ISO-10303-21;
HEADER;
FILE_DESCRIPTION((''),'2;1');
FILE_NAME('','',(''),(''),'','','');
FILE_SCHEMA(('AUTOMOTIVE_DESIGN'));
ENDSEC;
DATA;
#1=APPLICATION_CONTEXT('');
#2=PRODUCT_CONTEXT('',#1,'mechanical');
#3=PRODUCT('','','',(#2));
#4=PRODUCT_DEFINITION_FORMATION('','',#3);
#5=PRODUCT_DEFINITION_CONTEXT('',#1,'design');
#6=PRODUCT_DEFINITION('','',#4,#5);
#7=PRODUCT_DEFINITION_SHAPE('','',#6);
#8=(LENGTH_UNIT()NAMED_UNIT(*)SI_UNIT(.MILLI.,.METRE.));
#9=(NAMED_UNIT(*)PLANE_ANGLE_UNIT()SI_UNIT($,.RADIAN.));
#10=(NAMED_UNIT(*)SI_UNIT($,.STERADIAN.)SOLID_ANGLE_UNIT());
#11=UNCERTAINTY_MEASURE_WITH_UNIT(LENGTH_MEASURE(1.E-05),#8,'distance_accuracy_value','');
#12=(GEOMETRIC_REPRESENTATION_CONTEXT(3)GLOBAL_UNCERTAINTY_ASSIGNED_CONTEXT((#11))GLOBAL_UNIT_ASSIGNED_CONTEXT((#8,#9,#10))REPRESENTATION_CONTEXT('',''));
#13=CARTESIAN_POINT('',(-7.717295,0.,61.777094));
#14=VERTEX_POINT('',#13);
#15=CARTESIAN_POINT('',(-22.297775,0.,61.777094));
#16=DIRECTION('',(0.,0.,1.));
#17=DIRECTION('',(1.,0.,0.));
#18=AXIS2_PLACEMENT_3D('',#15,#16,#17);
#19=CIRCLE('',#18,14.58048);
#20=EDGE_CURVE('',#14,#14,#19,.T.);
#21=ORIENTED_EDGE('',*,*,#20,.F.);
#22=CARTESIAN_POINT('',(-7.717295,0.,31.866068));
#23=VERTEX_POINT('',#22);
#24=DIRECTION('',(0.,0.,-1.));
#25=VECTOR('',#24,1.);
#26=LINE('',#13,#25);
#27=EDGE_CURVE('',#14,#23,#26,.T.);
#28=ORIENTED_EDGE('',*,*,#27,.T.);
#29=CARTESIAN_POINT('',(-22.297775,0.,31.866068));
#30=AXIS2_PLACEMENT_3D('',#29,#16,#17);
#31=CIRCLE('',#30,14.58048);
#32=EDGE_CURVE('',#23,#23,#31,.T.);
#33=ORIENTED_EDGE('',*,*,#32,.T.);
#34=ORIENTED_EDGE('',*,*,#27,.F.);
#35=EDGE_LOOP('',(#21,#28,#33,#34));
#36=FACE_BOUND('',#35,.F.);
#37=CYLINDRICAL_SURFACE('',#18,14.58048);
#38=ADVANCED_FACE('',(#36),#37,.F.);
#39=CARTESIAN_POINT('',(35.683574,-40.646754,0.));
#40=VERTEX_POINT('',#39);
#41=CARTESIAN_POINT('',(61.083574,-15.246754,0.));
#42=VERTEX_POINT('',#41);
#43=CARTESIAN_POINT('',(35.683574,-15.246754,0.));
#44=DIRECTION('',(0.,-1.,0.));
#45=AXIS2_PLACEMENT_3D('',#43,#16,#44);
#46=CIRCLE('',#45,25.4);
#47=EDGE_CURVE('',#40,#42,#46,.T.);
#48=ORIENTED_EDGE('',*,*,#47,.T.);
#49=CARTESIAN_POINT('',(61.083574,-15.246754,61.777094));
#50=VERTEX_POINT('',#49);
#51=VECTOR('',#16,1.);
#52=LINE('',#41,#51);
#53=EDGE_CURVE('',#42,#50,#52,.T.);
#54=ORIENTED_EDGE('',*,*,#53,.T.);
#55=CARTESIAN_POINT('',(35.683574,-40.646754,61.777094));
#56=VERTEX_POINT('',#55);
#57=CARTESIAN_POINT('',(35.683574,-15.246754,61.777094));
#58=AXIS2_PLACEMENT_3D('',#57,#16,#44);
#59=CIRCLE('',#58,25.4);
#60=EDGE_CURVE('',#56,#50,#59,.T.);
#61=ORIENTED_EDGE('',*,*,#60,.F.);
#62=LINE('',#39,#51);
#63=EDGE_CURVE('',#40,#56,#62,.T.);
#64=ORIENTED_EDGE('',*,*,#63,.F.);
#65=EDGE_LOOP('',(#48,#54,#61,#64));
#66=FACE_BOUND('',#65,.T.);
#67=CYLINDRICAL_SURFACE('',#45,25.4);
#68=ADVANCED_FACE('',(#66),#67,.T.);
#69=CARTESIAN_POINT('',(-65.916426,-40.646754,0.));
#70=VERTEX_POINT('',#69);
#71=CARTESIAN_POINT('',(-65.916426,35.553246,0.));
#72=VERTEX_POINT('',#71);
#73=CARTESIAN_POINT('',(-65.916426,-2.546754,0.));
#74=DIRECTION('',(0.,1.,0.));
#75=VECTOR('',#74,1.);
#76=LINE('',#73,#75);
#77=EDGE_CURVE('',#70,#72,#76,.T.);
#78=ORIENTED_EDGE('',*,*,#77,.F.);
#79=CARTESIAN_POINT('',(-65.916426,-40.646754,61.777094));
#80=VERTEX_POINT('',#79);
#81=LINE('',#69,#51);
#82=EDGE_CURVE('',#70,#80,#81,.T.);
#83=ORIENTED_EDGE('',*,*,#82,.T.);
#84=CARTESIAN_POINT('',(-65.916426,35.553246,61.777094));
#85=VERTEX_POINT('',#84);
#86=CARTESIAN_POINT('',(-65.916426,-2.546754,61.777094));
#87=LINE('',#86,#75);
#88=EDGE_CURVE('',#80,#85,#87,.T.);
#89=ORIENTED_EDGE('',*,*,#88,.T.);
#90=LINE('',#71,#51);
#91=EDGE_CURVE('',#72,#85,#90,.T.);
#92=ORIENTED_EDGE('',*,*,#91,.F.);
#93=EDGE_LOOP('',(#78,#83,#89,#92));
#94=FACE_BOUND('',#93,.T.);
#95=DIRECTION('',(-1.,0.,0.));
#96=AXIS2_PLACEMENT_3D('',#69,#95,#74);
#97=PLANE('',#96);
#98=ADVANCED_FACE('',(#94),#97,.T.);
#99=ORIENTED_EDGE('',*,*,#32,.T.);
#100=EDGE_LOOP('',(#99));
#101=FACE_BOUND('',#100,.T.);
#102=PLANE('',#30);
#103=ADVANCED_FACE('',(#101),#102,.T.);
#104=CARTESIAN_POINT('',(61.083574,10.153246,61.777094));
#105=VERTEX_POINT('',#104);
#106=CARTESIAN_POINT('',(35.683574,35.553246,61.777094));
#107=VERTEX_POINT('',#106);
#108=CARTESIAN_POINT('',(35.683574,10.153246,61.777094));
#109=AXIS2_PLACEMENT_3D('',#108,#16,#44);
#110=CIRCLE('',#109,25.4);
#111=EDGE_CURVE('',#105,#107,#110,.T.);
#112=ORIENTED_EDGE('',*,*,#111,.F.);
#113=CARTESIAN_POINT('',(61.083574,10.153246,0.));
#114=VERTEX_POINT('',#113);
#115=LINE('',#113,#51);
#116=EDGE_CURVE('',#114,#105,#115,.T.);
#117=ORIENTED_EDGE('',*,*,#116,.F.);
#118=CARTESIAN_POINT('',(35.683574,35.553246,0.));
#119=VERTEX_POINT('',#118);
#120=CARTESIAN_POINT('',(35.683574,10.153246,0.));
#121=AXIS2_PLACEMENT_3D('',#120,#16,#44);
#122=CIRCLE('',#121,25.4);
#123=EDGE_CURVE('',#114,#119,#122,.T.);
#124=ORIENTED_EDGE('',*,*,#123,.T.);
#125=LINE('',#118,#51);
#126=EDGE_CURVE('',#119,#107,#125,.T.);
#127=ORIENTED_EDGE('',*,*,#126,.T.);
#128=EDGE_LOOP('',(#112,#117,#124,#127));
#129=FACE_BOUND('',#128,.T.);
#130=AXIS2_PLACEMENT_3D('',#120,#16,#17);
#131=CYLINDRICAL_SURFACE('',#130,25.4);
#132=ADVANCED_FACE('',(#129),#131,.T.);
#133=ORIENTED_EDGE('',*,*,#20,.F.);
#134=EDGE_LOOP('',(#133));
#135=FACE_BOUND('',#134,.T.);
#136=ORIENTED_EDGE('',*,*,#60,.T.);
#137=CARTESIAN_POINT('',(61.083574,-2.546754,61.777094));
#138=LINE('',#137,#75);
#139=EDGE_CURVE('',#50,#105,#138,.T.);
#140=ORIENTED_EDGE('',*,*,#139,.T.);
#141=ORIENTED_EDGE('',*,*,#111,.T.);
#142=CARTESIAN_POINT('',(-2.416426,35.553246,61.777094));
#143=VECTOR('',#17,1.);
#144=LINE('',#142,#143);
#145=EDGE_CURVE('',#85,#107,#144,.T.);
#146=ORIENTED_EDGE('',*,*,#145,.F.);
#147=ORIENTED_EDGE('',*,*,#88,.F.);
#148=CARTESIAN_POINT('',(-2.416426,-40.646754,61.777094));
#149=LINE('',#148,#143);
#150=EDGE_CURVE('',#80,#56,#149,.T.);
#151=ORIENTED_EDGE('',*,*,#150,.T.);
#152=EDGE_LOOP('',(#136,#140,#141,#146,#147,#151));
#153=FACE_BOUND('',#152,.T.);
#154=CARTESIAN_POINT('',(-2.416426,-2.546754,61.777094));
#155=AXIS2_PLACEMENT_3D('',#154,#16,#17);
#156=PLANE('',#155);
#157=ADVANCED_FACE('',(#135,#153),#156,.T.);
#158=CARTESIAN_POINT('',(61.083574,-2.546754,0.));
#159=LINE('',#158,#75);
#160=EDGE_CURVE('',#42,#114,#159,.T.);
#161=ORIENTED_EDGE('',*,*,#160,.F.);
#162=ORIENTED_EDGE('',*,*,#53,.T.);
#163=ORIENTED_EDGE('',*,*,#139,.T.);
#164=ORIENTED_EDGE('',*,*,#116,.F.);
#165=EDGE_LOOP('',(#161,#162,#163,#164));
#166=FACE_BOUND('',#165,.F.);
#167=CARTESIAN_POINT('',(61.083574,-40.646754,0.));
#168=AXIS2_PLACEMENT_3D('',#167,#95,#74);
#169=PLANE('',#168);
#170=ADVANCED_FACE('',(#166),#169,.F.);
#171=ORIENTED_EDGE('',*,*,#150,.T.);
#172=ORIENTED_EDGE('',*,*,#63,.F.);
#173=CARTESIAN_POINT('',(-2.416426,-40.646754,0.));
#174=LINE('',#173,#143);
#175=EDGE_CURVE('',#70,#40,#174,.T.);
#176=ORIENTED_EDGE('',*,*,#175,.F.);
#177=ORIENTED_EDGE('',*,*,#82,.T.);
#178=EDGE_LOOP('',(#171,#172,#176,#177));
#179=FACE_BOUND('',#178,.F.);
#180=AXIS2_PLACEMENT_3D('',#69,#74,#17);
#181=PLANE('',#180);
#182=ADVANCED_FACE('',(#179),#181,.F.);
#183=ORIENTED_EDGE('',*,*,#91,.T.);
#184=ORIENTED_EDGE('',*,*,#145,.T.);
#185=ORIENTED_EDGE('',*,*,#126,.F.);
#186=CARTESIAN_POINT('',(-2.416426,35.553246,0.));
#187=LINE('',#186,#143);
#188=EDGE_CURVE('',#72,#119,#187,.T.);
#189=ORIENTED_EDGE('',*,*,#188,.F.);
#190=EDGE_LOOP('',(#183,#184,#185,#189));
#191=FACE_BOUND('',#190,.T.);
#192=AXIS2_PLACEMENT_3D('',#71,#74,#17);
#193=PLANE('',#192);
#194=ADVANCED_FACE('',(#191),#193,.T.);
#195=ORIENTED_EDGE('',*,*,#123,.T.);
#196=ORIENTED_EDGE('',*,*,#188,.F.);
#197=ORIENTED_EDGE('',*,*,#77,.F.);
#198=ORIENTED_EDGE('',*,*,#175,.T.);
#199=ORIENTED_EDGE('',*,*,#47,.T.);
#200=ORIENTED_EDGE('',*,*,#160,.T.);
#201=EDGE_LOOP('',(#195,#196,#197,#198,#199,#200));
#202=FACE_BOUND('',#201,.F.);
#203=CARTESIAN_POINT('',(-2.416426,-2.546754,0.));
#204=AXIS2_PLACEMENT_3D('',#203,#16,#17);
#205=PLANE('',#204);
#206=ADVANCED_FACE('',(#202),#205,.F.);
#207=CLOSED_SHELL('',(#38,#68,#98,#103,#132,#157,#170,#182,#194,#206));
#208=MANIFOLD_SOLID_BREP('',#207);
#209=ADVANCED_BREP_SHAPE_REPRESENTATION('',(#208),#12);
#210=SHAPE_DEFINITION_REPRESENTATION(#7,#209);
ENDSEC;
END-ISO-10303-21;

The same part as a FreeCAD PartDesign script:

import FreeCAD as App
import Part
import Sketcher
from FreeCAD import Vector
Q = App.Units.Quantity


def edges_at(feature, points):
    """Names of the edges that pass closest to the given points."""
    edges = feature.Shape.Edges
    near = lambda p: min(range(len(edges)), key=lambda i: edges[i].distToShape(Part.Vertex(*p))[0])
    return sorted({f"Edge{near(p) + 1}" for p in points})


def add_polygon(sketch, points):
    """Adds a closed chain of lines whose ends are joined by coincident constraints."""
    first, n = sketch.GeometryCount, len(points)
    for a, b in zip(points, points[1:] + points[:1]):
        sketch.addGeometry(Part.LineSegment(App.Vector(*a, 0), App.Vector(*b, 0)), False)
    for i in range(n):
        sketch.addConstraint(Sketcher.Constraint("Coincident", first + i, 2, first + (i + 1) % n, 1))

doc = App.newDocument("Part")
body = doc.addObject("PartDesign::Body", "Body")

# Sketch on XY plane
sketch1 = doc.addObject("Sketcher::SketchObject", "Sketch")
body.addObject(sketch1)
sketch1.AttachmentSupport = (doc.XY_Plane, [""])
sketch1.MapMode = "FlatFace"
add_polygon(sketch1, [(-65.916426, 35.553246), (-65.916426, -40.646754), (61.083574, -40.646754), (61.083574, 35.553246)])  # lines 0-3
sketch1.addConstraint(Sketcher.Constraint("Vertical", 0))
sketch1.addConstraint(Sketcher.Constraint("Horizontal", 1))
sketch1.addConstraint(Sketcher.Constraint("Vertical", 2))
sketch1.addConstraint(Sketcher.Constraint("Horizontal", 3))
sketch1.addConstraint(Sketcher.Constraint("DistanceX", 1, 1, 1, 2, Q("5 in")))
sketch1.addConstraint(Sketcher.Constraint("DistanceY", 0, 2, 0, 1, Q("3 in")))
sketch1.addConstraint(Sketcher.Constraint("DistanceX", 0, 2, -1, 1, Q("65.916426 mm")))
sketch1.addConstraint(Sketcher.Constraint("DistanceY", 0, 2, -1, 1, Q("40.646754 mm")))
pad1 = doc.addObject("PartDesign::Pad", "Pad")
body.addObject(pad1)
pad1.Profile = sketch1
pad1.Length = 61.777094
doc.recompute()

fillet = doc.addObject("PartDesign::Fillet", "Fillet")
body.addObject(fillet)
fillet.Base = (pad1, edges_at(pad1, [(61.084, -40.647, 30.889), (61.084, 35.553, 30.889)]))
fillet.Radius = Q("1 in")

# Sketch on XY plane
sketch2 = doc.addObject("Sketcher::SketchObject", "Sketch001")
body.addObject(sketch2)
sketch2.AttachmentSupport = (doc.XY_Plane, [""])
sketch2.MapMode = "FlatFace"
sketch2.AttachmentOffset = App.Placement(Vector(0, 0, 61.777094), App.Rotation())
sketch2.addGeometry(Part.Circle(Vector(-22.297775, 0, 0), Vector(0, 0, 1), 14.58048), False)
sketch2.addConstraint(Sketcher.Constraint("PointOnObject", 0, 3, -1))
sketch2.addConstraint(Sketcher.Constraint("Diameter", 0, Q("29.16096 mm")))
sketch2.addConstraint(Sketcher.Constraint("DistanceX", 0, 3, -1, 1, Q("22.297775 mm")))
pocket1 = doc.addObject("PartDesign::Pocket", "Pocket")
body.addObject(pocket1)
pocket1.Profile = sketch2
pocket1.Length = 29.911026

doc.recompute()
